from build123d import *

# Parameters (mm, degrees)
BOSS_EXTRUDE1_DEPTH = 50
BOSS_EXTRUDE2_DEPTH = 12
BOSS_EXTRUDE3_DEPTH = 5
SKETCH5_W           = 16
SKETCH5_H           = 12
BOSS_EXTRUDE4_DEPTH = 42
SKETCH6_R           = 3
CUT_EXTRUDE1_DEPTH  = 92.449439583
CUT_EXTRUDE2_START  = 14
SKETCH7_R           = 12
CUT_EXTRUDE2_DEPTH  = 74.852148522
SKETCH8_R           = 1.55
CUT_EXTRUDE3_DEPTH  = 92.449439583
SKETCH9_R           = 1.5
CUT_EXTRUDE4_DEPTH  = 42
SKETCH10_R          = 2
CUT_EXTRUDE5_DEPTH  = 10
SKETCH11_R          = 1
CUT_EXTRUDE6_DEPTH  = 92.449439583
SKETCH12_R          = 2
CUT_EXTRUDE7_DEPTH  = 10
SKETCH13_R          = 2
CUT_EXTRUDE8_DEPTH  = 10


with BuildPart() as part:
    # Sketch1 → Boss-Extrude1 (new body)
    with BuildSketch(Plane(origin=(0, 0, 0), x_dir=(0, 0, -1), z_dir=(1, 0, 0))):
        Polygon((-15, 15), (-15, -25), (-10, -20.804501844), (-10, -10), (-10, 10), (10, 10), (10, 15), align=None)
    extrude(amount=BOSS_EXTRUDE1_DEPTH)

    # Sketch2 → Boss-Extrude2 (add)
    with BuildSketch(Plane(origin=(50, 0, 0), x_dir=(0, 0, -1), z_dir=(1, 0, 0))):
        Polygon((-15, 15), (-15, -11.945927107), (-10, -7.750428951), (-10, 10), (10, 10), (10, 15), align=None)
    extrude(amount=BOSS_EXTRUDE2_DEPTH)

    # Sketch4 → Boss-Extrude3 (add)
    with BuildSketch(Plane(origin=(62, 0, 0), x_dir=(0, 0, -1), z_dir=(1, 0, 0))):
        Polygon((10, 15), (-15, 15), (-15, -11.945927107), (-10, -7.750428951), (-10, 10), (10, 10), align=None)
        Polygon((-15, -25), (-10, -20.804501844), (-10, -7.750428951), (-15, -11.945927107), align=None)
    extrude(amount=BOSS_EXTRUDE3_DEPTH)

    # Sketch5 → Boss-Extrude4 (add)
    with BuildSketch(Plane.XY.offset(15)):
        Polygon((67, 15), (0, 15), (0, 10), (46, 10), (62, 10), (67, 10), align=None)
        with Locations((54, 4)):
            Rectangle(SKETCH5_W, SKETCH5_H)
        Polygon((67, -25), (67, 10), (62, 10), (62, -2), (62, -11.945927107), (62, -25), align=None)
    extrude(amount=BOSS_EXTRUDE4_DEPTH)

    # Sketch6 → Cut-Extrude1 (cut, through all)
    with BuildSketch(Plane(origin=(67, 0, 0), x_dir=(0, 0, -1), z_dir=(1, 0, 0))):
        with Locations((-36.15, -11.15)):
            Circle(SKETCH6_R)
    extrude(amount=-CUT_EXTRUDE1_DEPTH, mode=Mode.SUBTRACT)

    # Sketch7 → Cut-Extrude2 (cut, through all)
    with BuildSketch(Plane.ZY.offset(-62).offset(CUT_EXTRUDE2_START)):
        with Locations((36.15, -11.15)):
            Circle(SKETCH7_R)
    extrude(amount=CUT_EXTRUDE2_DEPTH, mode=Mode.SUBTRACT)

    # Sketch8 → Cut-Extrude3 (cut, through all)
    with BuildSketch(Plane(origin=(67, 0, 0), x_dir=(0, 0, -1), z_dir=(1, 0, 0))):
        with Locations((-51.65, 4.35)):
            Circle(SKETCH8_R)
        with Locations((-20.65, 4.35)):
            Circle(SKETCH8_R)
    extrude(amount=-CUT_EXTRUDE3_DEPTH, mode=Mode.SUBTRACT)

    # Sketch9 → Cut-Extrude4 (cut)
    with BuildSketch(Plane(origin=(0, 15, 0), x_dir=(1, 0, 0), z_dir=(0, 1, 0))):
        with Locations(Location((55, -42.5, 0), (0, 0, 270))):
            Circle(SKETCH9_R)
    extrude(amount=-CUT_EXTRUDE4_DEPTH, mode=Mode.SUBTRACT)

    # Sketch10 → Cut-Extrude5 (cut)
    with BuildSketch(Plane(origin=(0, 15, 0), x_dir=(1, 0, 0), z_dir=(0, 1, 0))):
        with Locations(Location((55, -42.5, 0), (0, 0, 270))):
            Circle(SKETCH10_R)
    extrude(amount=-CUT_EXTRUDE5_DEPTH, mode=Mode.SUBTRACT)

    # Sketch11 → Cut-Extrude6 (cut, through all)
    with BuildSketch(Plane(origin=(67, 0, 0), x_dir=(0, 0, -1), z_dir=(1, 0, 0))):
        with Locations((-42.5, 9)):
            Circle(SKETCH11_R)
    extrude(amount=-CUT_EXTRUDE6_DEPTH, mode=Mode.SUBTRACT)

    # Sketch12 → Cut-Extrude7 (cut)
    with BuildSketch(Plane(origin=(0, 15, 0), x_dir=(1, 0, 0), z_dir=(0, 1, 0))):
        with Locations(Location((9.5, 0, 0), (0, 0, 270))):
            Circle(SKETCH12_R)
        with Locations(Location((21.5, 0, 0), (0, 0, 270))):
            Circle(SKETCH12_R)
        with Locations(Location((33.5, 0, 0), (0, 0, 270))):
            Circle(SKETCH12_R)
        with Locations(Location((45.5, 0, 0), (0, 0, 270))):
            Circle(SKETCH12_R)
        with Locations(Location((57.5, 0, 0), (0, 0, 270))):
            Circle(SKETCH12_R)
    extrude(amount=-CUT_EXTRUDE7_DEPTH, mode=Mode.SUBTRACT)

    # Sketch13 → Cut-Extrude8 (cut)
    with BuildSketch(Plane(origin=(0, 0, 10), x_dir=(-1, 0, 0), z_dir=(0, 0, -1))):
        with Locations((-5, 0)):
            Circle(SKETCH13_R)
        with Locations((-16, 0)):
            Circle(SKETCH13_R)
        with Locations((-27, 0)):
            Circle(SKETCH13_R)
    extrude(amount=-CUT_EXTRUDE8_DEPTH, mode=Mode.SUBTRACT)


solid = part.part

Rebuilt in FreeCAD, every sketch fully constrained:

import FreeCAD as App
import Part
import Sketcher
from FreeCAD import Vector
Q = App.Units.Quantity


def add_polygon(sketch, points):
    """Adds a closed chain of lines whose ends are joined by coincident constraints."""
    first, n = sketch.GeometryCount, len(points)
    for a, b in zip(points, points[1:] + points[:1]):
        sketch.addGeometry(Part.LineSegment(App.Vector(*a, 0), App.Vector(*b, 0)), False)
    for i in range(n):
        sketch.addConstraint(Sketcher.Constraint("Coincident", first + i, 2, first + (i + 1) % n, 1))

doc = App.newDocument("Part")
body = doc.addObject("PartDesign::Body", "Body")

sketch1 = body.newObject("Sketcher::SketchObject", "Sketch")
sketch1.AttachmentSupport = (doc.getObject("YZ_Plane"), [""])
sketch1.MapMode = "FlatFace"
add_polygon(sketch1, [(15, 15), (-25, 15), (-21, 10), (10, 10), (10, -10), (15, -10)])
sketch1.addConstraint(Sketcher.Constraint("Horizontal", 0))
sketch1.addConstraint(Sketcher.Constraint("Horizontal", 2))
sketch1.addConstraint(Sketcher.Constraint("Vertical", 3))
sketch1.addConstraint(Sketcher.Constraint("Horizontal", 4))
sketch1.addConstraint(Sketcher.Constraint("Vertical", 5))
sketch1.addConstraint(Sketcher.Constraint("DistanceX", 0, 2, 0, 1, 40.0))
sketch1.addConstraint(Sketcher.Constraint("DistanceX", 4, 1, 4, 2, 5.0))
sketch1.addConstraint(Sketcher.Constraint("DistanceY", 3, 2, 3, 1, 20.0))
sketch1.addConstraint(Sketcher.Constraint("DistanceY", 5, 1, 5, 2, 25.0))
sketch1.addConstraint(Sketcher.Constraint("Angle", 1, Q("-50 deg")))
sketch1.addConstraint(Sketcher.Constraint("DistanceX", 0, 2, -1, 1, 25.0))
sketch1.addConstraint(Sketcher.Constraint("DistanceY", -1, 1, 0, 2, 15.0))
pad1 = body.newObject("PartDesign::Pad", "Pad")
pad1.Profile = sketch1
pad1.Length = 50

sketch2 = body.newObject("Sketcher::SketchObject", "Sketch001")
sketch2.AttachmentSupport = (doc.getObject("YZ_Plane"), [""])
sketch2.MapMode = "FlatFace"
sketch2.AttachmentOffset = App.Placement(Vector(0, 0, 50), App.Rotation())
add_polygon(sketch2, [(15, 15), (-12, 15), (-8, 10), (10, 10), (10, -10), (15, -10)])
sketch2.addConstraint(Sketcher.Constraint("Horizontal", 0))
sketch2.addConstraint(Sketcher.Constraint("Horizontal", 2))
sketch2.addConstraint(Sketcher.Constraint("Vertical", 3))
sketch2.addConstraint(Sketcher.Constraint("Horizontal", 4))
sketch2.addConstraint(Sketcher.Constraint("Vertical", 5))
sketch2.addConstraint(Sketcher.Constraint("DistanceX", 4, 1, 4, 2, 5.0))
sketch2.addConstraint(Sketcher.Constraint("DistanceY", 3, 2, 3, 1, 20.0))
sketch2.addConstraint(Sketcher.Constraint("DistanceY", 5, 1, 5, 2, 25.0))
sketch2.addConstraint(Sketcher.Constraint("Angle", 1, Q("-50 deg")))
sketch2.addConstraint(Sketcher.Constraint("DistanceY", -1, 1, 0, 2, 15.0))
sketch2.addConstraint(Sketcher.Constraint("DistanceX", -1, 1, 2, 2, 10.0))
sketch2.addConstraint(Sketcher.Constraint("DistanceX", 2, 1, 2, 2, 17.750429))
pad2 = body.newObject("PartDesign::Pad", "Pad001")
pad2.Profile = sketch2
pad2.Length = 12

sketch3 = body.newObject("Sketcher::SketchObject", "Sketch002")
sketch3.AttachmentSupport = (doc.getObject("YZ_Plane"), [""])
sketch3.MapMode = "FlatFace"
sketch3.AttachmentOffset = App.Placement(Vector(0, 0, 62), App.Rotation())
add_polygon(sketch3, [(15, -10), (15, 15), (-25, 15), (-21, 10), (10, 10), (10, -10)])
sketch3.addConstraint(Sketcher.Constraint("Vertical", 0))
sketch3.addConstraint(Sketcher.Constraint("Horizontal", 1))
sketch3.addConstraint(Sketcher.Constraint("Horizontal", 3))
sketch3.addConstraint(Sketcher.Constraint("Vertical", 4))
sketch3.addConstraint(Sketcher.Constraint("Horizontal", 5))
sketch3.addConstraint(Sketcher.Constraint("DistanceX", 1, 2, 1, 1, 40.0))
sketch3.addConstraint(Sketcher.Constraint("DistanceX", 5, 1, 5, 2, 5.0))
sketch3.addConstraint(Sketcher.Constraint("DistanceY", 0, 1, 0, 2, 25.0))
sketch3.addConstraint(Sketcher.Constraint("DistanceY", 4, 2, 4, 1, 20.0))
sketch3.addConstraint(Sketcher.Constraint("Angle", 2, Q("-50 deg")))
sketch3.addConstraint(Sketcher.Constraint("DistanceX", -1, 1, 0, 2, 15.0))
sketch3.addConstraint(Sketcher.Constraint("DistanceY", -1, 1, 0, 2, 15.0))
pad3 = body.newObject("PartDesign::Pad", "Pad002")
pad3.Profile = sketch3
pad3.Length = 5

sketch4 = body.newObject("Sketcher::SketchObject", "Sketch003")
sketch4.AttachmentSupport = (doc.getObject("XY_Plane"), [""])
sketch4.MapMode = "FlatFace"
sketch4.AttachmentOffset = App.Placement(Vector(0, 0, 15), App.Rotation())
add_polygon(sketch4, [(67, 15), (0, 15), (0, 10), (46, 10), (46, -2), (62, -2), (62, -25), (67, -25)])
sketch4.addConstraint(Sketcher.Constraint("Horizontal", 0))
sketch4.addConstraint(Sketcher.Constraint("Vertical", 1))
sketch4.addConstraint(Sketcher.Constraint("Horizontal", 2))
sketch4.addConstraint(Sketcher.Constraint("Vertical", 3))
sketch4.addConstraint(Sketcher.Constraint("Horizontal", 4))
sketch4.addConstraint(Sketcher.Constraint("Vertical", 5))
sketch4.addConstraint(Sketcher.Constraint("Horizontal", 6))
sketch4.addConstraint(Sketcher.Constraint("Vertical", 7))
sketch4.addConstraint(Sketcher.Constraint("PointOnObject", 0, 2, -2))
sketch4.addConstraint(Sketcher.Constraint("Equal", 6, 1))
sketch4.addConstraint(Sketcher.Constraint("DistanceX", 0, 2, 0, 1, 67.0))
sketch4.addConstraint(Sketcher.Constraint("DistanceX", 2, 1, 2, 2, 46.0))
sketch4.addConstraint(Sketcher.Constraint("DistanceX", 4, 1, 4, 2, 16.0))
sketch4.addConstraint(Sketcher.Constraint("DistanceY", 3, 2, 3, 1, 12.0))
sketch4.addConstraint(Sketcher.Constraint("DistanceY", 5, 2, 5, 1, 23.0))
sketch4.addConstraint(Sketcher.Constraint("DistanceY", -1, 1, 0, 2, 15.0))
pad4 = body.newObject("PartDesign::Pad", "Pad003")
pad4.Profile = sketch4
pad4.Length = 42

sketch5 = body.newObject("Sketcher::SketchObject", "Sketch004")
sketch5.AttachmentSupport = (doc.getObject("YZ_Plane"), [""])
sketch5.MapMode = "FlatFace"
sketch5.AttachmentOffset = App.Placement(Vector(0, 0, 67), App.Rotation())
sketch5.addGeometry(Part.Circle(Vector(-11.2, 36.1, 0), Vector(0, 0, 1), 3), False)
sketch5.addConstraint(Sketcher.Constraint("Diameter", 0, 6.0))
sketch5.addConstraint(Sketcher.Constraint("DistanceX", 0, 3, -1, 1, 11.15))
sketch5.addConstraint(Sketcher.Constraint("DistanceY", -1, 1, 0, 3, 36.15))
pocket1 = body.newObject("PartDesign::Pocket", "Pocket")
pocket1.Profile = sketch5
pocket1.Type = "ThroughAll"

sketch6 = body.newObject("Sketcher::SketchObject", "Sketch005")
sketch6.AttachmentSupport = (doc.getObject("YZ_Plane"), [""])
sketch6.MapMode = "FlatFace"
sketch6.AttachmentOffset = App.Placement(Vector(0, 0, 48), App.Rotation())
sketch6.addGeometry(Part.Circle(Vector(-11, 36, 0), Vector(0, 0, 1), 12), False)
sketch6.addConstraint(Sketcher.Constraint("Diameter", 0, 24.0))
sketch6.addConstraint(Sketcher.Constraint("DistanceX", 0, 3, -1, 1, 11.15))
sketch6.addConstraint(Sketcher.Constraint("DistanceY", -1, 1, 0, 3, 36.15))
pocket2 = body.newObject("PartDesign::Pocket", "Pocket001")
pocket2.Profile = sketch6
pocket2.Type = "ThroughAll"

sketch7 = body.newObject("Sketcher::SketchObject", "Sketch006")
sketch7.AttachmentSupport = (doc.getObject("YZ_Plane"), [""])
sketch7.MapMode = "FlatFace"
sketch7.AttachmentOffset = App.Placement(Vector(0, 0, 67), App.Rotation())
sketch7.addGeometry(Part.Circle(Vector(4.3, 51.6, 0), Vector(0, 0, 1), 1.6), False)
sketch7.addGeometry(Part.Circle(Vector(4.3, 20.6, 0), Vector(0, 0, 1), 1.6), False)
sketch7.addConstraint(Sketcher.Constraint("Equal", 0, 1))
sketch7.addConstraint(Sketcher.Constraint("Vertical", 0, 3, 1, 3))
sketch7.addConstraint(Sketcher.Constraint("Diameter", 0, 3.1))
sketch7.addConstraint(Sketcher.Constraint("DistanceY", 1, 3, 0, 3, 31.0))
sketch7.addConstraint(Sketcher.Constraint("DistanceX", -1, 1, 0, 3, 4.35))
sketch7.addConstraint(Sketcher.Constraint("DistanceY", -1, 1, 0, 3, 51.65))
pocket3 = body.newObject("PartDesign::Pocket", "Pocket002")
pocket3.Profile = sketch7
pocket3.Type = "ThroughAll"

sketch8 = body.newObject("Sketcher::SketchObject", "Sketch007")
sketch8.AttachmentSupport = (doc.getObject("XZ_Plane"), [""])
sketch8.MapMode = "FlatFace"
sketch8.AttachmentOffset = App.Placement(Vector(0, 0, -15), App.Rotation())
sketch8.addGeometry(Part.Circle(Vector(55, 42.5, 0), Vector(0, 0, 1), 1.5), False)
sketch8.addConstraint(Sketcher.Constraint("Diameter", 0, 3.0))
sketch8.addConstraint(Sketcher.Constraint("DistanceX", -1, 1, 0, 3, 55.0))
sketch8.addConstraint(Sketcher.Constraint("DistanceY", -1, 1, 0, 3, 42.5))
pocket4 = body.newObject("PartDesign::Pocket", "Pocket003")
pocket4.Profile = sketch8
pocket4.Length = 42
pocket4.Reversed = True

sketch9 = body.newObject("Sketcher::SketchObject", "Sketch008")
sketch9.AttachmentSupport = (doc.getObject("XZ_Plane"), [""])
sketch9.MapMode = "FlatFace"
sketch9.AttachmentOffset = App.Placement(Vector(0, 0, -15), App.Rotation())
sketch9.addGeometry(Part.Circle(Vector(55, 42.5, 0), Vector(0, 0, 1), 2), False)
sketch9.addConstraint(Sketcher.Constraint("Diameter", 0, 4.0))
sketch9.addConstraint(Sketcher.Constraint("DistanceX", -1, 1, 0, 3, 55.0))
sketch9.addConstraint(Sketcher.Constraint("DistanceY", -1, 1, 0, 3, 42.5))
pocket5 = body.newObject("PartDesign::Pocket", "Pocket004")
pocket5.Profile = sketch9
pocket5.Length = 10
pocket5.Reversed = True

sketch10 = body.newObject("Sketcher::SketchObject", "Sketch009")
sketch10.AttachmentSupport = (doc.getObject("YZ_Plane"), [""])
sketch10.MapMode = "FlatFace"
sketch10.AttachmentOffset = App.Placement(Vector(0, 0, 67), App.Rotation())
sketch10.addGeometry(Part.Circle(Vector(9, 42.5, 0), Vector(0, 0, 1), 1), False)
sketch10.addConstraint(Sketcher.Constraint("Diameter", 0, 2.0))
sketch10.addConstraint(Sketcher.Constraint("DistanceX", -1, 1, 0, 3, 9.0))
sketch10.addConstraint(Sketcher.Constraint("DistanceY", -1, 1, 0, 3, 42.5))
pocket6 = body.newObject("PartDesign::Pocket", "Pocket005")
pocket6.Profile = sketch10
pocket6.Type = "ThroughAll"

sketch11 = body.newObject("Sketcher::SketchObject", "Sketch010")
sketch11.AttachmentSupport = (doc.getObject("XZ_Plane"), [""])
sketch11.MapMode = "FlatFace"
sketch11.AttachmentOffset = App.Placement(Vector(0, 0, -15), App.Rotation())
sketch11.addGeometry(Part.Circle(Vector(9.5, 0, 0), Vector(0, 0, 1), 2), False)
sketch11.addGeometry(Part.Circle(Vector(21.5, 0, 0), Vector(0, 0, 1), 2), False)
sketch11.addGeometry(Part.Circle(Vector(33.5, 0, 0), Vector(0, 0, 1), 2), False)
sketch11.addGeometry(Part.Circle(Vector(45.5, 0, 0), Vector(0, 0, 1), 2), False)
sketch11.addGeometry(Part.Circle(Vector(57.5, 0, 0), Vector(0, 0, 1), 2), False)
sketch11.addConstraint(Sketcher.Constraint("Equal", 0, 1))
sketch11.addConstraint(Sketcher.Constraint("Equal", 1, 2))
sketch11.addConstraint(Sketcher.Constraint("Equal", 2, 3))
sketch11.addConstraint(Sketcher.Constraint("Equal", 3, 4))
sketch11.addConstraint(Sketcher.Constraint("PointOnObject", 0, 3, -1))
sketch11.addConstraint(Sketcher.Constraint("PointOnObject", 1, 3, -1))
sketch11.addConstraint(Sketcher.Constraint("PointOnObject", 2, 3, -1))
sketch11.addConstraint(Sketcher.Constraint("PointOnObject", 3, 3, -1))
sketch11.addConstraint(Sketcher.Constraint("PointOnObject", 4, 3, -1))
sketch11.addConstraint(Sketcher.Constraint("Diameter", 0, 4.0))
sketch11.addConstraint(Sketcher.Constraint("DistanceX", 0, 3, 1, 3, 12.0))
sketch11.addConstraint(Sketcher.Constraint("DistanceX", 1, 3, 2, 3, 12.0))
sketch11.addConstraint(Sketcher.Constraint("DistanceX", 2, 3, 3, 3, 12.0))
sketch11.addConstraint(Sketcher.Constraint("DistanceX", 3, 3, 4, 3, 12.0))
sketch11.addConstraint(Sketcher.Constraint("DistanceX", -1, 1, 0, 3, 9.5))
pocket7 = body.newObject("PartDesign::Pocket", "Pocket006")
pocket7.Profile = sketch11
pocket7.Length = 10
pocket7.Reversed = True

sketch12 = body.newObject("Sketcher::SketchObject", "Sketch011")
sketch12.AttachmentSupport = (doc.getObject("XY_Plane"), [""])
sketch12.MapMode = "FlatFace"
sketch12.AttachmentOffset = App.Placement(Vector(0, 0, 10), App.Rotation())
sketch12.addGeometry(Part.Circle(Vector(5, 0, 0), Vector(0, 0, 1), 2), False)
sketch12.addGeometry(Part.Circle(Vector(16, 0, 0), Vector(0, 0, 1), 2), False)
sketch12.addGeometry(Part.Circle(Vector(27, 0, 0), Vector(0, 0, 1), 2), False)
sketch12.addConstraint(Sketcher.Constraint("Equal", 0, 1))
sketch12.addConstraint(Sketcher.Constraint("Equal", 1, 2))
sketch12.addConstraint(Sketcher.Constraint("PointOnObject", 0, 3, -1))
sketch12.addConstraint(Sketcher.Constraint("PointOnObject", 1, 3, -1))
sketch12.addConstraint(Sketcher.Constraint("PointOnObject", 2, 3, -1))
sketch12.addConstraint(Sketcher.Constraint("Diameter", 0, 4.0))
sketch12.addConstraint(Sketcher.Constraint("DistanceX", -1, 1, 0, 3, 5.0))
sketch12.addConstraint(Sketcher.Constraint("DistanceX", -1, 1, 1, 3, 16.0))
sketch12.addConstraint(Sketcher.Constraint("DistanceX", -1, 1, 2, 3, 27.0))
pocket8 = body.newObject("PartDesign::Pocket", "Pocket007")
pocket8.Profile = sketch12
pocket8.Length = 10
pocket8.Reversed = True

doc.recompute()
